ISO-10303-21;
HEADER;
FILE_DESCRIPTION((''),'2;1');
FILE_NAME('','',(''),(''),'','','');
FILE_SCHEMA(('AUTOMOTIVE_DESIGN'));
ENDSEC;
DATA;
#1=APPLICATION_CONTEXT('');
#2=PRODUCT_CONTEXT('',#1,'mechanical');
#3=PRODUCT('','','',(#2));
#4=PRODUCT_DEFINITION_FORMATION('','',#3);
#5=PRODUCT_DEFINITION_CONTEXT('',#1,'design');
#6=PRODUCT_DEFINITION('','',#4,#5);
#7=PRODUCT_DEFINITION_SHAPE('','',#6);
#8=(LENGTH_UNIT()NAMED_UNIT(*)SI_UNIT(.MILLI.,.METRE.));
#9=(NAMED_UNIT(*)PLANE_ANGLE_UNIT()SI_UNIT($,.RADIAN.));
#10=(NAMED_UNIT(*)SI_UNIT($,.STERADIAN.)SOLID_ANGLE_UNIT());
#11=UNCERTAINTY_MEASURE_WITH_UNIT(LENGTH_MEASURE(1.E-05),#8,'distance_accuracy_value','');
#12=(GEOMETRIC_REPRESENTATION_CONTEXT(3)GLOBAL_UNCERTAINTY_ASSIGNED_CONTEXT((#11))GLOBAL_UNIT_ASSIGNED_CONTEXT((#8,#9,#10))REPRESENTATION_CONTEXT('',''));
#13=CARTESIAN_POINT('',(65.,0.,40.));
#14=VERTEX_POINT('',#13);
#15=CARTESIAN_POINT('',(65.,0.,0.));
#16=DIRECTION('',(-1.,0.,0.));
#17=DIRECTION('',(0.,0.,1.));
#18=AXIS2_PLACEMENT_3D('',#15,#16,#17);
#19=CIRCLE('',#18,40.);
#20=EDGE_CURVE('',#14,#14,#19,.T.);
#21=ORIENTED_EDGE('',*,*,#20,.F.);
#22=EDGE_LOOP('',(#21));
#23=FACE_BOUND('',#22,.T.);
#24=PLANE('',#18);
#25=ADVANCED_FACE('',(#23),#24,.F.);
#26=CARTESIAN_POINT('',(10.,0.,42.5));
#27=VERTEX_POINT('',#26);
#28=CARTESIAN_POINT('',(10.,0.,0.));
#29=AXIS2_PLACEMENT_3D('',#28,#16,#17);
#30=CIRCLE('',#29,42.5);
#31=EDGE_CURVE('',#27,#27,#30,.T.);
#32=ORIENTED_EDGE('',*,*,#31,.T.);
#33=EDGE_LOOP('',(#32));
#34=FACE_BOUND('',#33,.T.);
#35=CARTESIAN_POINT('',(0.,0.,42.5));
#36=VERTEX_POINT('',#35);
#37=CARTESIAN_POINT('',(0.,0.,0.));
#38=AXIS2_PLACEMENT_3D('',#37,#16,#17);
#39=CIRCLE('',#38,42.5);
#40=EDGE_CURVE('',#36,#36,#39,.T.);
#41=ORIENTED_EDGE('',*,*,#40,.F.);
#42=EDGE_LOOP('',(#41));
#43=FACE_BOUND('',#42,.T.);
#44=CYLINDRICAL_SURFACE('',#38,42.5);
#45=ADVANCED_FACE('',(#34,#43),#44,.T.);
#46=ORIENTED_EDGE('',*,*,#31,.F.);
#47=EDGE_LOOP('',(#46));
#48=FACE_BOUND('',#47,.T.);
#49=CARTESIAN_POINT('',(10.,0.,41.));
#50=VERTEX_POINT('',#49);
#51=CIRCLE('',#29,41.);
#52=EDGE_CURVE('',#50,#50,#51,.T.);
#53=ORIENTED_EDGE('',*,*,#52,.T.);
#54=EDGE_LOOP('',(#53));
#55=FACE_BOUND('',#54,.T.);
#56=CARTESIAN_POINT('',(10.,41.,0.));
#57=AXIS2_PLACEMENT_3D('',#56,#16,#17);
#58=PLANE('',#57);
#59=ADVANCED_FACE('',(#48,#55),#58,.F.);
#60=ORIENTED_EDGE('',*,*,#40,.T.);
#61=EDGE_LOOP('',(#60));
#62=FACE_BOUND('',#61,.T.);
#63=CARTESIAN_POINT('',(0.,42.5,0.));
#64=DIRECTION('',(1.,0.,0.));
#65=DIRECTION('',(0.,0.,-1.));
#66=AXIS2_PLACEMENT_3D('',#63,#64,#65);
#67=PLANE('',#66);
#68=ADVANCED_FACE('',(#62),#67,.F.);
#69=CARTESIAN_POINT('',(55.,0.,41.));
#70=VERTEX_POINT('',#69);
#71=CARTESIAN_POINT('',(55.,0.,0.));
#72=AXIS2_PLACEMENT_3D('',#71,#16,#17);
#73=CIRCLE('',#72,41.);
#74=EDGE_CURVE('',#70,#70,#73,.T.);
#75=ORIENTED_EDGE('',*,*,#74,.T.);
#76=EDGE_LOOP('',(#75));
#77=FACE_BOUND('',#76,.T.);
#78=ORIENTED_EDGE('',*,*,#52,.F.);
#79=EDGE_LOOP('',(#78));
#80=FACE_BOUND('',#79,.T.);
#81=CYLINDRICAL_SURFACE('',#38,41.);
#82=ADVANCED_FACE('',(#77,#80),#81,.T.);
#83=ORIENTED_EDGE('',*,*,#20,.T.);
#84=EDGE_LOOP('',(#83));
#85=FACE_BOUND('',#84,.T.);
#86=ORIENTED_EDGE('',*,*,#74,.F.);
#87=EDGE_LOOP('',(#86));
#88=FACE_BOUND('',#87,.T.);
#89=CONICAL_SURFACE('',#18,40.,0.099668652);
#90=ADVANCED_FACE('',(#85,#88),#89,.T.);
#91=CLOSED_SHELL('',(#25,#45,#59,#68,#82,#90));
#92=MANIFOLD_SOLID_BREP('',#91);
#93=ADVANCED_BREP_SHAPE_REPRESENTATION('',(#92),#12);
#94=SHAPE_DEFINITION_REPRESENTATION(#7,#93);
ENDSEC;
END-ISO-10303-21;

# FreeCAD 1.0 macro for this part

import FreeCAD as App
import Part
import Sketcher

V = App.Vector
Q = App.Units.Quantity

doc = App.newDocument("Part")
body = doc.addObject("PartDesign::Body", "Body")

sketch1 = body.newObject("Sketcher::SketchObject", "Sketch")
sketch1.AttachmentSupport = (doc.getObject("XY_Plane"), [""])
sketch1.MapMode = "FlatFace"
sketch1.addGeometry([
    Part.LineSegment(V(65, 0, 0), V(65, 40, 0)),
    Part.LineSegment(V(65, 40, 0), V(55, 41, 0)),
    Part.LineSegment(V(55, 41, 0), V(10, 41, 0)),
    Part.LineSegment(V(10, 41, 0), V(10, 42.5, 0)),
    Part.LineSegment(V(10, 42.5, 0), V(0, 42.5, 0)),
    Part.LineSegment(V(0, 42.5, 0), V(0, 0, 0)),
    Part.LineSegment(V(0, 0, 0), V(65, 0, 0)),
], False)
sketch1.addConstraint([
    Sketcher.Constraint("Coincident", 0, 2, 1, 1),
    Sketcher.Constraint("Coincident", 1, 2, 2, 1),
    Sketcher.Constraint("Coincident", 2, 2, 3, 1),
    Sketcher.Constraint("Coincident", 3, 2, 4, 1),
    Sketcher.Constraint("Coincident", 4, 2, 5, 1),
    Sketcher.Constraint("Coincident", 5, 2, 6, 1),
    Sketcher.Constraint("Coincident", 6, 2, 0, 1),
    Sketcher.Constraint("Vertical", 0),
    Sketcher.Constraint("Horizontal", 2),
    Sketcher.Constraint("Vertical", 3),
    Sketcher.Constraint("Horizontal", 4),
    Sketcher.Constraint("Vertical", 5),
    Sketcher.Constraint("Horizontal", 6),
    Sketcher.Constraint("Coincident", 5, 2, -1, 1),
    Sketcher.Constraint("DistanceX", 2, 2, 2, 1, Q("45 mm")),
    Sketcher.Constraint("DistanceX", 4, 2, 4, 1, Q("10 mm")),
    Sketcher.Constraint("DistanceX", 6, 1, 6, 2, Q("65 mm")),
    Sketcher.Constraint("DistanceY", 0, 1, 0, 2, Q("40 mm")),
    Sketcher.Constraint("DistanceY", 3, 1, 3, 2, Q("1.5 mm")),
    Sketcher.Constraint("DistanceY", 5, 2, 5, 1, Q("42.5 mm")),
])
revolution = body.newObject("PartDesign::Revolution", "Revolution")
revolution.Profile = sketch1
revolution.ReferenceAxis = (sketch1, ["H_Axis"])
revolution.Angle = 360

doc.recompute()
